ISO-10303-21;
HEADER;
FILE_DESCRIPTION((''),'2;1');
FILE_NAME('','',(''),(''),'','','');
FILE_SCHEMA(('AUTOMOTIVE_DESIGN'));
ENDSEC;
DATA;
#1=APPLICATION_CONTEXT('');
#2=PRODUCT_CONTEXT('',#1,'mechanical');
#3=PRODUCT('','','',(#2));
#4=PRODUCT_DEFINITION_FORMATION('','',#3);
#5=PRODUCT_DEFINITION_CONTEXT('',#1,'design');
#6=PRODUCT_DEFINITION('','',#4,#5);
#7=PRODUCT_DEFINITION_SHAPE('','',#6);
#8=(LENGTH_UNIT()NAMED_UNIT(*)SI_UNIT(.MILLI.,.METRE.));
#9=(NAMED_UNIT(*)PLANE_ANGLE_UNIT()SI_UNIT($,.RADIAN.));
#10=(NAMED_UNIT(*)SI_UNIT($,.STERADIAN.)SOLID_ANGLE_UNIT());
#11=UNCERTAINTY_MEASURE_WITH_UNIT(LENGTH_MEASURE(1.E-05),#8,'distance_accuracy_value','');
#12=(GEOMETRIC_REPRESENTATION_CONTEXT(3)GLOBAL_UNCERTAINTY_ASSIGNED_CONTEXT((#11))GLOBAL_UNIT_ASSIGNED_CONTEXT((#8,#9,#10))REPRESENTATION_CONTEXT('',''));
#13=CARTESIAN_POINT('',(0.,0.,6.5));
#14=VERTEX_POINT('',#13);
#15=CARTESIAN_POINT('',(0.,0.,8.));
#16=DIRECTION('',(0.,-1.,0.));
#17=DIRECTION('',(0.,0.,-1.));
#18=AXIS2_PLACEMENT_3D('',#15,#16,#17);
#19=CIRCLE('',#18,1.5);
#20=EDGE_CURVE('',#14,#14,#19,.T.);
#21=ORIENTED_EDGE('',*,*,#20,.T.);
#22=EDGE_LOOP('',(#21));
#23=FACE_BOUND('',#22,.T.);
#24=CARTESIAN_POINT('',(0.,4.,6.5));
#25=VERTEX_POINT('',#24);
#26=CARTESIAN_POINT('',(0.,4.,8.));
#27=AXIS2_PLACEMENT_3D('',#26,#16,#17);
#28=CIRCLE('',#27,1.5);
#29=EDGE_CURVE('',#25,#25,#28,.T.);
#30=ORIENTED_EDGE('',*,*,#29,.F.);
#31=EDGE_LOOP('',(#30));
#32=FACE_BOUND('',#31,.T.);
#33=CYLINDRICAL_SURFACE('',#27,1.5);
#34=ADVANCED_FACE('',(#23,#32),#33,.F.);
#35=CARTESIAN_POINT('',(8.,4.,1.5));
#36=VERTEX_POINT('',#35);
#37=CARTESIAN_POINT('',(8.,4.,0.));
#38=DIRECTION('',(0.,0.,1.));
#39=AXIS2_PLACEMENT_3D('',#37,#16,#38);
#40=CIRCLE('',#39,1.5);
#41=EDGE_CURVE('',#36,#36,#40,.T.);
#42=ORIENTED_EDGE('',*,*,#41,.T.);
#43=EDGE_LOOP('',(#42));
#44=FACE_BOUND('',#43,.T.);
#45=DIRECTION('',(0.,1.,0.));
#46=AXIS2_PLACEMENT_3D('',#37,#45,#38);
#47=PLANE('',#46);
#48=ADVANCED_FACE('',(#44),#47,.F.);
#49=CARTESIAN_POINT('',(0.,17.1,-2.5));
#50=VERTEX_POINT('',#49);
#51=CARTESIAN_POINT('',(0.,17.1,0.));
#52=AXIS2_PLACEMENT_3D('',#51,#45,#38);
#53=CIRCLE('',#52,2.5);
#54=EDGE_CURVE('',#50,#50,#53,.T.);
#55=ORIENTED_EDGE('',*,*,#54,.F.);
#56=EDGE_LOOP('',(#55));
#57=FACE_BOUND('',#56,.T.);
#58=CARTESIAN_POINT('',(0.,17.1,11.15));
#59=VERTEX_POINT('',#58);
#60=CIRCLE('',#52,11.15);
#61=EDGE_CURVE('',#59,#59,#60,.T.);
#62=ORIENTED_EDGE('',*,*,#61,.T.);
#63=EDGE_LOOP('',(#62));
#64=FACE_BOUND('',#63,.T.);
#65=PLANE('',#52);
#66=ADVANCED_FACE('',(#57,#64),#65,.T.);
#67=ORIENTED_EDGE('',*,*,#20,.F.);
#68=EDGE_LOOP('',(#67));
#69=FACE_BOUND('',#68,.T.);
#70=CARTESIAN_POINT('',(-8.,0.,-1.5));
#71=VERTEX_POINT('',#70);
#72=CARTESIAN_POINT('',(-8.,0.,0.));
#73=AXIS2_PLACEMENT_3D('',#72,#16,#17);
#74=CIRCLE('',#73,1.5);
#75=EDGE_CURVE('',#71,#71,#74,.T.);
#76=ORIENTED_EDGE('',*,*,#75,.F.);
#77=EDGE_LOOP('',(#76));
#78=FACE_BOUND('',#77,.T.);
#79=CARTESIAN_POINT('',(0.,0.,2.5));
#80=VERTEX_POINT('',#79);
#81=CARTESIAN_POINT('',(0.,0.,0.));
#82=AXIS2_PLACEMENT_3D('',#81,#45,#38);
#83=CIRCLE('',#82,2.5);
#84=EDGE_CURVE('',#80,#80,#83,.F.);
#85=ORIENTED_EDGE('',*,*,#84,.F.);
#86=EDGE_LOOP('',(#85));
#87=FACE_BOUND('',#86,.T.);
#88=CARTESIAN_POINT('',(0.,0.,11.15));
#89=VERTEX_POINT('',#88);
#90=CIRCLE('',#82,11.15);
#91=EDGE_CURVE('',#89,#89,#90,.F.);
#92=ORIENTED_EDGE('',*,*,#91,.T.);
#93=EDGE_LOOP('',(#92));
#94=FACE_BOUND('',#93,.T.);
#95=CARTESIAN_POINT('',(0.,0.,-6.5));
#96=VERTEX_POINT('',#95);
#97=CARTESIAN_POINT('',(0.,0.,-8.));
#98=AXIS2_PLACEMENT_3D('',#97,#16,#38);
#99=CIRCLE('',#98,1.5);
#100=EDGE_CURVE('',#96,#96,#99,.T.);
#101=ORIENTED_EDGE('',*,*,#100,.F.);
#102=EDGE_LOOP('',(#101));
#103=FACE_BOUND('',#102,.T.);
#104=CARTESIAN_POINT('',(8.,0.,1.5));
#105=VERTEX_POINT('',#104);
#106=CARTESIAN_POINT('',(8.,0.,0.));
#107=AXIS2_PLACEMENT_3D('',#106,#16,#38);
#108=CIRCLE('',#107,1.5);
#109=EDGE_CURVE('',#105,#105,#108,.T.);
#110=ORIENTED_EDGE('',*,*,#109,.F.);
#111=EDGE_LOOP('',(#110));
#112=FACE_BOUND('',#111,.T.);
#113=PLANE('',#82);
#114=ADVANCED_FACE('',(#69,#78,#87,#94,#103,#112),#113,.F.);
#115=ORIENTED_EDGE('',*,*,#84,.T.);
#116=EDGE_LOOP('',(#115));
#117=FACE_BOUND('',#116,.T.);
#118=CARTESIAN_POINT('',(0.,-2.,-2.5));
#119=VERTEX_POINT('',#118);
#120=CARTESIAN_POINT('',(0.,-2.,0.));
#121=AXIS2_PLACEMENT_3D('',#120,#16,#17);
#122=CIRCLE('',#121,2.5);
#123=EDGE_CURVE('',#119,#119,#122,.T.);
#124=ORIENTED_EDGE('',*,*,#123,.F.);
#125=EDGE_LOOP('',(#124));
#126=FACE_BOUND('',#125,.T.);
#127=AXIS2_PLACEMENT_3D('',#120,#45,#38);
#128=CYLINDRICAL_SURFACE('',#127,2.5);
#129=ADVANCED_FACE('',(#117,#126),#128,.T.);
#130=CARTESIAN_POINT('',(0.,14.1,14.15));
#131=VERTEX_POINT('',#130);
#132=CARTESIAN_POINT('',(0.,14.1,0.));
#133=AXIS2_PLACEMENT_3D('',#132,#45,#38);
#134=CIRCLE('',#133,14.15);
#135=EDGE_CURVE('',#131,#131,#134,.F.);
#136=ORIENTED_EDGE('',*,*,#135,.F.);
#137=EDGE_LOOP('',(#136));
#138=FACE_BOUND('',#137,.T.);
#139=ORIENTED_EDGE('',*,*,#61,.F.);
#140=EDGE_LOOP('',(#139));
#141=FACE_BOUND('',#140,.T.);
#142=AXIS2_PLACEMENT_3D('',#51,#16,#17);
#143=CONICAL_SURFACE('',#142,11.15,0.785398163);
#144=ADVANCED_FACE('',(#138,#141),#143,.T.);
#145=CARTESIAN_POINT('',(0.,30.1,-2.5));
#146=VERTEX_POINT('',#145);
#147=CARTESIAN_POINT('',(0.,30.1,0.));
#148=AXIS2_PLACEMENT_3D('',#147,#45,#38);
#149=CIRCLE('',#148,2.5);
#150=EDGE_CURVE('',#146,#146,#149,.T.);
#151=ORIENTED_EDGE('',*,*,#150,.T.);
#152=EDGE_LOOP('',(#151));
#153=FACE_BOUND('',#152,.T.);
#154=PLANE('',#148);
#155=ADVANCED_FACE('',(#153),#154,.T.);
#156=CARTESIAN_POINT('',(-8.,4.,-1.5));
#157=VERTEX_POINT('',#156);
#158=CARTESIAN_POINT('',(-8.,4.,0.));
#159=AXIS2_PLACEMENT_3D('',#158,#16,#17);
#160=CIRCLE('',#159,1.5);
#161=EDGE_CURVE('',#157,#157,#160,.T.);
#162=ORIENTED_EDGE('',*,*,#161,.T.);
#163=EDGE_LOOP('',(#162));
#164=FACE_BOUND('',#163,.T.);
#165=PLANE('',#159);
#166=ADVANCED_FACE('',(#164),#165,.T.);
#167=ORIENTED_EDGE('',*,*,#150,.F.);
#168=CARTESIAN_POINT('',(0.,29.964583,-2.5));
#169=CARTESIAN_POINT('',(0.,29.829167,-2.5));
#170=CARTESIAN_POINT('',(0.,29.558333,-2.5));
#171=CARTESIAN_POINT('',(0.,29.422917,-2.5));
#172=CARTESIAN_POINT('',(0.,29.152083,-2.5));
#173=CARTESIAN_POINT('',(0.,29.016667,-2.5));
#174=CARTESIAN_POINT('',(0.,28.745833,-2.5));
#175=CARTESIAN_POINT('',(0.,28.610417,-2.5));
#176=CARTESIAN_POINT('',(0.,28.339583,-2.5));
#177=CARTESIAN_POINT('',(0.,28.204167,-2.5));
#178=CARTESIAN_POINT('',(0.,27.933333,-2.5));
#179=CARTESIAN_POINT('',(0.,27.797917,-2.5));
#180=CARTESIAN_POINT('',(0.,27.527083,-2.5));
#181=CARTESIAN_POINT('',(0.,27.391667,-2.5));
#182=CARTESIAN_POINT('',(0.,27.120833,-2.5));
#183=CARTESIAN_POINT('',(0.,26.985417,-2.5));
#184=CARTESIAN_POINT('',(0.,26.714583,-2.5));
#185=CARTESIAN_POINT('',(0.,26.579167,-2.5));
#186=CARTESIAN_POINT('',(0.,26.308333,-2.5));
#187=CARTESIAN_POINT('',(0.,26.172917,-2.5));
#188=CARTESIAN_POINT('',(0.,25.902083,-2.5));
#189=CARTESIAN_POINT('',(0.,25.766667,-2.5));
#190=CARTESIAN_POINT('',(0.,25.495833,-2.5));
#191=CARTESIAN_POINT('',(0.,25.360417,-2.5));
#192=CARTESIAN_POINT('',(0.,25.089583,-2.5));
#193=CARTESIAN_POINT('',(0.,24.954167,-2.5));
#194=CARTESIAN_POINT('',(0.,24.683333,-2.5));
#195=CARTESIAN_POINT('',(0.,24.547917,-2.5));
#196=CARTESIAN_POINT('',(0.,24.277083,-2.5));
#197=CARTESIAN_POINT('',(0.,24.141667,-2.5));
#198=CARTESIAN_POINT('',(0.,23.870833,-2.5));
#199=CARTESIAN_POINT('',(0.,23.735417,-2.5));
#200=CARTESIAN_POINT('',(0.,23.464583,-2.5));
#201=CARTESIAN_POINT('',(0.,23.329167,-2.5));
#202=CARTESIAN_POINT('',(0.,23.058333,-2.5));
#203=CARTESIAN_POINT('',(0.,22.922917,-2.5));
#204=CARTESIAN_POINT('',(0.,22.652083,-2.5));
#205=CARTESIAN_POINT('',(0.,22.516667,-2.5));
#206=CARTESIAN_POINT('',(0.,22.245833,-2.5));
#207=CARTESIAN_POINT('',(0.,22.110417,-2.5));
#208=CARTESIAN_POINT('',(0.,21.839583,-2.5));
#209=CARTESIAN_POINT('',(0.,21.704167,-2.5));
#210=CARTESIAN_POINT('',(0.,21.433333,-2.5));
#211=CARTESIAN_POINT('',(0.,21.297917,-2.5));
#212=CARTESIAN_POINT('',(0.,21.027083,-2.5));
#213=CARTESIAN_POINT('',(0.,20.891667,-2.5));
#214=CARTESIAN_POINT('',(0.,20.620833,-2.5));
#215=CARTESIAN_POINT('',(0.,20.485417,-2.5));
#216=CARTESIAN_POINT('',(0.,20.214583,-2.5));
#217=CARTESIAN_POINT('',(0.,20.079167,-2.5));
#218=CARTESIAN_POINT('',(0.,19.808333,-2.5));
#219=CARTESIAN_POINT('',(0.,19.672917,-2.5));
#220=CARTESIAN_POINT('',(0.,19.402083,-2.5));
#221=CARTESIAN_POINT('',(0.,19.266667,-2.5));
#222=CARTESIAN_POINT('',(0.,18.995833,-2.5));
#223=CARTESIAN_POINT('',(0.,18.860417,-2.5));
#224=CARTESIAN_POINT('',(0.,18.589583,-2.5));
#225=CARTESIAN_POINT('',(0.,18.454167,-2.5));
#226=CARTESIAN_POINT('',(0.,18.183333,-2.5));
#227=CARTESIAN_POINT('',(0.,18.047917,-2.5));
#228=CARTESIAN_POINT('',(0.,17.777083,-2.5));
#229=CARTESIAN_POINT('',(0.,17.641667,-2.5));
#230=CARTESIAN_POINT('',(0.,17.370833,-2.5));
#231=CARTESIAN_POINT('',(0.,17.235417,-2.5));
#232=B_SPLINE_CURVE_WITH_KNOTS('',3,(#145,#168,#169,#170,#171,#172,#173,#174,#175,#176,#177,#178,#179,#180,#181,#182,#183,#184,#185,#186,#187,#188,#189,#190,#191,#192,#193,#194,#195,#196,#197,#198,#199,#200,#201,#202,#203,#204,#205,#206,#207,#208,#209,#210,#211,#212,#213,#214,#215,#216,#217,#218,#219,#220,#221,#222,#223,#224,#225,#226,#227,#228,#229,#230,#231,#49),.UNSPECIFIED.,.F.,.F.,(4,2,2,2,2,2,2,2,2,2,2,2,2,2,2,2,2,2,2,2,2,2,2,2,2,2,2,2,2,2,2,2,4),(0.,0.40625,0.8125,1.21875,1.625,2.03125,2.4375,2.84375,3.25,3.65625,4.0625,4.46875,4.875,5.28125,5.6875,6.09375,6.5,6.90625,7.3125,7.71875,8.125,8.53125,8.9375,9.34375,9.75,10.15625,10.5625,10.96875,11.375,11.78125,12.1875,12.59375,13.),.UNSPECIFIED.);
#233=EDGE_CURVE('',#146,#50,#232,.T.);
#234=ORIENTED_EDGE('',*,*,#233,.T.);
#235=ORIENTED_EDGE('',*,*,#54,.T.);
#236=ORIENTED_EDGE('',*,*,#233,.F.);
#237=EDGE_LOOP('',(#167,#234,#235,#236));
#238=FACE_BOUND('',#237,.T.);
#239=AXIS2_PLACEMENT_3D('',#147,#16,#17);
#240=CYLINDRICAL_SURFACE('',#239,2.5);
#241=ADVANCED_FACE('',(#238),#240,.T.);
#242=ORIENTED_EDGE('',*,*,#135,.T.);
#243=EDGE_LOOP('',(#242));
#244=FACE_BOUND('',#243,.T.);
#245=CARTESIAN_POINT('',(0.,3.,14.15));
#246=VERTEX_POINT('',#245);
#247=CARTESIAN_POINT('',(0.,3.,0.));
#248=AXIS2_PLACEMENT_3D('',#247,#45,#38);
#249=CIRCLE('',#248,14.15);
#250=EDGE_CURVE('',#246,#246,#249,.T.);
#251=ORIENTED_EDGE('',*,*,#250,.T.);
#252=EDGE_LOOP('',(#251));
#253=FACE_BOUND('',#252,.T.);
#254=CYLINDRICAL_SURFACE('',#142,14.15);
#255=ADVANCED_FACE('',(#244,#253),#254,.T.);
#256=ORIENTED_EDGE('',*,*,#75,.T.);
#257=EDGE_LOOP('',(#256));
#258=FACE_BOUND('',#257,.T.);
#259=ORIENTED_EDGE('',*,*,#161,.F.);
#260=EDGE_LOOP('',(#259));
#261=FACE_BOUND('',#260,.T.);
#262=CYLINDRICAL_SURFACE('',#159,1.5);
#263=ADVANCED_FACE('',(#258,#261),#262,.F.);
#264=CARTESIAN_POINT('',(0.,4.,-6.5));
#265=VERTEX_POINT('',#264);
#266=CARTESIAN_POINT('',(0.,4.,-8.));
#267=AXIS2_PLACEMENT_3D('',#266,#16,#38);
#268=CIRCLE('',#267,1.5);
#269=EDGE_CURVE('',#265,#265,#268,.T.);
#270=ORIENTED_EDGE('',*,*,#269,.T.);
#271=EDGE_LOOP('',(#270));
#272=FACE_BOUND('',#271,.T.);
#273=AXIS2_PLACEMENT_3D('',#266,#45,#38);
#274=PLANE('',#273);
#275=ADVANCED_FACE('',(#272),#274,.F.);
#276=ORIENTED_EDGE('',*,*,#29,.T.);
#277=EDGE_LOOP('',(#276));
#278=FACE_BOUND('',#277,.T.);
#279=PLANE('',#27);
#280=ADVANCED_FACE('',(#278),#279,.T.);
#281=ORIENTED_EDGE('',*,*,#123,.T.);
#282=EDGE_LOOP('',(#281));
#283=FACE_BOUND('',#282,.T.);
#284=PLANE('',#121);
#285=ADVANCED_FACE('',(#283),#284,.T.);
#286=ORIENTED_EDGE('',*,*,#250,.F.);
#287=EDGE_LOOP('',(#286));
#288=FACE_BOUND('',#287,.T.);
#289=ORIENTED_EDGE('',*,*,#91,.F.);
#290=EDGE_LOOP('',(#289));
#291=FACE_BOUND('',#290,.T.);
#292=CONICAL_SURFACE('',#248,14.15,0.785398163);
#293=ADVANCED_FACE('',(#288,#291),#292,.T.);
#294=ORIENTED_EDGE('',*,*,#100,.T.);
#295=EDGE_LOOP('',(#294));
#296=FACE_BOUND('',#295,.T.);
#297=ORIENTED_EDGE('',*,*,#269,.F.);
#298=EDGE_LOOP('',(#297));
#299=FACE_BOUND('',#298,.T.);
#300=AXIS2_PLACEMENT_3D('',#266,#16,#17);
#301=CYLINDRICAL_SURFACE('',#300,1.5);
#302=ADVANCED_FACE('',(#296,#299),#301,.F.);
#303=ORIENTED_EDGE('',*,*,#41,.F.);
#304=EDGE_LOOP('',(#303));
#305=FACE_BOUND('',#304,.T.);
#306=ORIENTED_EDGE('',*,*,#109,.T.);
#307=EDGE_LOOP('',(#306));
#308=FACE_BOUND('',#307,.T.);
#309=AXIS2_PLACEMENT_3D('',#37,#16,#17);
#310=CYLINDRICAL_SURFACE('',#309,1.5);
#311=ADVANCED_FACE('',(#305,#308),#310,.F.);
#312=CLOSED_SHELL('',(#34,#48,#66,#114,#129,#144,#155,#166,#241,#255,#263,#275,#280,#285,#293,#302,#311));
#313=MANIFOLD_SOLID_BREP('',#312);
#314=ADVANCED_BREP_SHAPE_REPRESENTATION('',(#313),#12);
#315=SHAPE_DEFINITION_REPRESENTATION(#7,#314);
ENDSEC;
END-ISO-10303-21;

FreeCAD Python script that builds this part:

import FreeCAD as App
import Part
import Sketcher


def edges_at(feature, points):
    """Names of the edges that pass closest to the given points."""
    edges = feature.Shape.Edges
    near = lambda p: min(range(len(edges)), key=lambda i: edges[i].distToShape(Part.Vertex(*p))[0])
    return sorted({f"Edge{near(p) + 1}" for p in points})

doc = App.newDocument("Part")
body = doc.addObject("PartDesign::Body", "Body")

# Sketch on XZ plane
sketch1 = body.newObject("Sketcher::SketchObject", "Sketch")
sketch1.AttachmentSupport = (doc.getObject("XZ_Plane"), [""])
sketch1.MapMode = "FlatFace"
sketch1.addGeometry(Part.Circle(App.Vector(0, 0, 0), App.Vector(0, 0, 1), 14), False)
sketch1.addConstraint(Sketcher.Constraint("Coincident", 0, 3, -1, 1))
sketch1.addConstraint(Sketcher.Constraint("Diameter", 0, 28.3))
pad1 = body.newObject("PartDesign::Pad", "Pad")
pad1.Profile = sketch1
pad1.Length = 17.1
pad1.Reversed = True

# Sketch on XZ plane
sketch2 = body.newObject("Sketcher::SketchObject", "Sketch001")
sketch2.AttachmentSupport = (doc.getObject("XZ_Plane"), [""])
sketch2.MapMode = "FlatFace"
sketch2.AttachmentOffset = App.Placement(App.Vector(0, 0, -17.1), App.Rotation())
sketch2.addGeometry(Part.Circle(App.Vector(0, 0, 0), App.Vector(0, 0, 1), 2.5), False)
sketch2.addConstraint(Sketcher.Constraint("Coincident", 0, 3, -1, 1))
sketch2.addConstraint(Sketcher.Constraint("Diameter", 0, 5.0))
pad2 = body.newObject("PartDesign::Pad", "Pad001")
pad2.Profile = sketch2
pad2.Length = 13
pad2.Reversed = True
doc.recompute()

chamfer = body.newObject("PartDesign::Chamfer", "Chamfer")
chamfer.Base = (pad2, edges_at(pad2, [(0, 0, -14.15), (0, 17.1, -14.15)]))
chamfer.Size = 3

# Sketch on XZ plane
sketch3 = body.newObject("Sketcher::SketchObject", "Sketch002")
sketch3.AttachmentSupport = (doc.getObject("XZ_Plane"), [""])
sketch3.MapMode = "FlatFace"
sketch3.addGeometry(Part.Circle(App.Vector(-8, 0, 0), App.Vector(0, 0, 1), 1.5), False)
sketch3.addGeometry(Part.Circle(App.Vector(0, 8, 0), App.Vector(0, 0, 1), 1.5), False)
sketch3.addGeometry(Part.Circle(App.Vector(8, 0, 0), App.Vector(0, 0, 1), 1.5), False)
sketch3.addGeometry(Part.Circle(App.Vector(0, -8, 0), App.Vector(0, 0, 1), 1.5), False)
sketch3.addConstraint(Sketcher.Constraint("Equal", 0, 1))
sketch3.addConstraint(Sketcher.Constraint("Equal", 1, 2))
sketch3.addConstraint(Sketcher.Constraint("Equal", 2, 3))
sketch3.addConstraint(Sketcher.Constraint("Symmetric", 0, 3, 2, 3, -1, 1))
sketch3.addConstraint(Sketcher.Constraint("Symmetric", 1, 3, 3, 3, -1, 1))
sketch3.addConstraint(Sketcher.Constraint("PointOnObject", 0, 3, -1))
sketch3.addConstraint(Sketcher.Constraint("PointOnObject", 1, 3, -2))
sketch3.addConstraint(Sketcher.Constraint("Diameter", 0, 3.0))
sketch3.addConstraint(Sketcher.Constraint("DistanceX", 0, 3, -1, 1, 8.0))
sketch3.addConstraint(Sketcher.Constraint("DistanceY", -1, 1, 1, 3, 8.0))
pocket1 = body.newObject("PartDesign::Pocket", "Pocket")
pocket1.Profile = sketch3
pocket1.Length = 4

# Sketch on XZ plane
sketch4 = body.newObject("Sketcher::SketchObject", "Sketch003")
sketch4.AttachmentSupport = (doc.getObject("XZ_Plane"), [""])
sketch4.MapMode = "FlatFace"
sketch4.AttachmentOffset = App.Placement(App.Vector(0, 0, 2), App.Rotation())
sketch4.addGeometry(Part.Circle(App.Vector(0, 0, 0), App.Vector(0, 0, 1), 2.5), False)
sketch4.addConstraint(Sketcher.Constraint("Coincident", 0, 3, -1, 1))
sketch4.addConstraint(Sketcher.Constraint("Diameter", 0, 5.0))
pad3 = body.newObject("PartDesign::Pad", "Pad002")
pad3.Profile = sketch4
pad3.Length = 2
pad3.Reversed = True

doc.recompute()
